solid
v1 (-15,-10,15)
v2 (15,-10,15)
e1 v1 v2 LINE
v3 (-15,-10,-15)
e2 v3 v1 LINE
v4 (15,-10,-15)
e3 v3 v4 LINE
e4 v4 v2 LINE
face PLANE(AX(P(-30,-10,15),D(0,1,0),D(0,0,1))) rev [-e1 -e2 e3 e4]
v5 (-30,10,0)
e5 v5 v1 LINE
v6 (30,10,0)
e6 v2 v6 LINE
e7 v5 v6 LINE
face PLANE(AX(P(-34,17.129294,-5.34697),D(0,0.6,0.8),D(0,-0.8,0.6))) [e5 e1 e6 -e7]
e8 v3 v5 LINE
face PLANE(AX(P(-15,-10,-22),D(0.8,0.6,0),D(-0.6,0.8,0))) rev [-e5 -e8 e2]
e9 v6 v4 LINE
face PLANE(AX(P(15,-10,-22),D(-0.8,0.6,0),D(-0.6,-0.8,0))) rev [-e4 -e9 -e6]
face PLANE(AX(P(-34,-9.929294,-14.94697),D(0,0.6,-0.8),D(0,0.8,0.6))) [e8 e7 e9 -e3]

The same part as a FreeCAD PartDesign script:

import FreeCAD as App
import Part
import Sketcher
from FreeCAD import Vector
Q = App.Units.Quantity


def add_polygon(sketch, points):
    """Adds a closed chain of lines whose ends are joined by coincident constraints."""
    first, n = sketch.GeometryCount, len(points)
    for a, b in zip(points, points[1:] + points[:1]):
        sketch.addGeometry(Part.LineSegment(App.Vector(*a, 0), App.Vector(*b, 0)), False)
    for i in range(n):
        sketch.addConstraint(Sketcher.Constraint("Coincident", first + i, 2, first + (i + 1) % n, 1))

doc = App.newDocument("Part")
body = doc.addObject("PartDesign::Body", "Body")

sketch1 = body.newObject("Sketcher::SketchObject", "Sketch")
sketch1.AttachmentSupport = (doc.getObject("XY_Plane"), [""])
sketch1.MapMode = "FlatFace"
add_polygon(sketch1, [(-30, 10), (-30, -10), (30, -10), (30, 10)])
sketch1.addConstraint([
    Sketcher.Constraint("Vertical", 0),
    Sketcher.Constraint("Horizontal", 1),
    Sketcher.Constraint("Vertical", 2),
    Sketcher.Constraint("Horizontal", 3),
    Sketcher.Constraint("Symmetric", 0, 2, 2, 2, -1, 1),
    Sketcher.Constraint("DistanceX", 1, 1, 1, 2, Q("60 mm")),
    Sketcher.Constraint("DistanceY", 0, 2, 0, 1, Q("20 mm")),
])
pad1 = body.newObject("PartDesign::Pad", "Pad")
pad1.Profile = sketch1
pad1.Length = 30
pad1.Midplane = True

sketch2 = body.newObject("Sketcher::SketchObject", "Sketch001")
sketch2.AttachmentSupport = (doc.getObject("XY_Plane"), [""])
sketch2.MapMode = "FlatFace"
add_polygon(sketch2, [(-15, -10), (-30, 10), (-30, -10)])
add_polygon(sketch2, [(30, 10), (15, -10), (30, -10)])
sketch2.addConstraint([
    Sketcher.Constraint("Vertical", 1),
    Sketcher.Constraint("Horizontal", 2),
    Sketcher.Constraint("Horizontal", 4),
    Sketcher.Constraint("Vertical", 5),
    Sketcher.Constraint("Symmetric", 0, 2, 4, 2, -1, 1),
    Sketcher.Constraint("Symmetric", 2, 2, 3, 2, -2),
    Sketcher.Constraint("Horizontal", 0, 2, 5, 2),
    Sketcher.Constraint("DistanceX", 2, 1, 2, 2, Q("15 mm")),
    Sketcher.Constraint("DistanceY", 1, 2, 1, 1, Q("20 mm")),
    Sketcher.Constraint("DistanceX", 0, 2, -1, 1, Q("30 mm")),
])
pocket1 = body.newObject("PartDesign::Pocket", "Pocket")
pocket1.Profile = sketch2
pocket1.Length = 44
pocket1.Midplane = True

sketch3 = body.newObject("Sketcher::SketchObject", "Sketch002")
sketch3.AttachmentSupport = (doc.getObject("YZ_Plane"), [""])
sketch3.MapMode = "FlatFace"
add_polygon(sketch3, [(10, 15), (-10, 15), (10, 0)])
add_polygon(sketch3, [(10, -15), (10, 0), (-10, -15)])
sketch3.addConstraint([
    Sketcher.Constraint("Horizontal", 0),
    Sketcher.Constraint("Vertical", 2),
    Sketcher.Constraint("Vertical", 3),
    Sketcher.Constraint("Horizontal", 5),
    Sketcher.Constraint("Coincident", 3, 2, 1, 2),
    Sketcher.Constraint("Symmetric", 2, 2, 4, 2, -1, 1),
    Sketcher.Constraint("PointOnObject", 1, 2, -1),
    Sketcher.Constraint("Vertical", 0, 2, 4, 2),
    Sketcher.Constraint("DistanceX", 0, 2, 0, 1, Q("20 mm")),
    Sketcher.Constraint("DistanceY", 2, 1, 2, 2, Q("15 mm")),
])
pocket2 = body.newObject("PartDesign::Pocket", "Pocket001")
pocket2.Profile = sketch3
pocket2.Length = 68
pocket2.Midplane = True

doc.recompute()
